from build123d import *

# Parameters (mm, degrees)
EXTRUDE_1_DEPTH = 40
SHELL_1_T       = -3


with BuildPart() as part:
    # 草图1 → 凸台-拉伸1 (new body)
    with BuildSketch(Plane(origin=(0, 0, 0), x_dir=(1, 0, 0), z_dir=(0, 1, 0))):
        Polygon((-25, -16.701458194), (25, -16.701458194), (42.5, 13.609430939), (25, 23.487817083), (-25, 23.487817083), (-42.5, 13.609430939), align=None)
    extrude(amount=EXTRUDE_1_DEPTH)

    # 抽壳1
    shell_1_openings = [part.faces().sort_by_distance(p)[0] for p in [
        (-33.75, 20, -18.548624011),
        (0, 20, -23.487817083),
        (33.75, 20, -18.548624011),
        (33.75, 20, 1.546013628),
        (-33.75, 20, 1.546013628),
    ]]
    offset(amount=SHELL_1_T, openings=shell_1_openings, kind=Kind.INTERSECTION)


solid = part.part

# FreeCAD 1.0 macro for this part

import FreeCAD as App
import Part
import Sketcher

V = App.Vector
Q = App.Units.Quantity


def faces_at(feature, points):
    """Names of the faces that lie closest to the given points."""
    faces = feature.Shape.Faces
    near = lambda p: min(range(len(faces)), key=lambda i: faces[i].distToShape(Part.Vertex(*p))[0])
    return sorted({f"Face{near(p) + 1}" for p in points})


def add_polygon(sketch, points):
    """Adds a closed chain of lines whose ends are joined by coincident constraints."""
    first, n = sketch.GeometryCount, len(points)
    for a, b in zip(points, points[1:] + points[:1]):
        sketch.addGeometry(Part.LineSegment(App.Vector(*a, 0), App.Vector(*b, 0)), False)
    for i in range(n):
        sketch.addConstraint(Sketcher.Constraint("Coincident", first + i, 2, first + (i + 1) % n, 1))

doc = App.newDocument("Part")
body = doc.addObject("PartDesign::Body", "Body")

sketch1 = doc.addObject("Sketcher::SketchObject", "Sketch")
body.addObject(sketch1)
sketch1.AttachmentSupport = (doc.XZ_Plane, [""])
sketch1.MapMode = "FlatFace"
add_polygon(sketch1, [(-25, 16.701458), (25, 16.701458), (42.5, -13.609431), (25, -23.487817), (-25, -23.487817), (-42.5, -13.609431)])
sketch1.addConstraint([
    Sketcher.Constraint("Horizontal", 0),
    Sketcher.Constraint("Horizontal", 3),
    Sketcher.Constraint("Symmetric", 1, 2, 4, 2, -2),
    Sketcher.Constraint("Vertical", 0, 2, 2, 2),
    Sketcher.Constraint("Vertical", 3, 2, 5, 2),
    Sketcher.Constraint("Equal", 2, 4),
    Sketcher.Constraint("DistanceX", 0, 1, 0, 2, Q("50 mm")),
    Sketcher.Constraint("Angle", 1, Q("-60 deg")),
    Sketcher.Constraint("Distance", 1, Q("35 mm")),
    Sketcher.Constraint("DistanceY", -1, 1, 0, 2, Q("16.701458 mm")),
    Sketcher.Constraint("Distance", 2, Q("20.095584 mm")),
])
pad1 = doc.addObject("PartDesign::Pad", "Pad")
body.addObject(pad1)
pad1.Profile = sketch1
pad1.Length = 40
pad1.Reversed = True
doc.recompute()

thickness = doc.addObject("PartDesign::Thickness", "Thickness")
body.addObject(thickness)
thickness.Base = (pad1, faces_at(pad1, [
    (-33.75, 20, -18.549),
    (0, 20, -23.488),
    (33.75, 20, -18.549),
    (33.75, 20, 1.546),
    (-33.75, 20, 1.546),
]))
thickness.Value = 3
thickness.Reversed = True
thickness.Join = "Intersection"

doc.recompute()
